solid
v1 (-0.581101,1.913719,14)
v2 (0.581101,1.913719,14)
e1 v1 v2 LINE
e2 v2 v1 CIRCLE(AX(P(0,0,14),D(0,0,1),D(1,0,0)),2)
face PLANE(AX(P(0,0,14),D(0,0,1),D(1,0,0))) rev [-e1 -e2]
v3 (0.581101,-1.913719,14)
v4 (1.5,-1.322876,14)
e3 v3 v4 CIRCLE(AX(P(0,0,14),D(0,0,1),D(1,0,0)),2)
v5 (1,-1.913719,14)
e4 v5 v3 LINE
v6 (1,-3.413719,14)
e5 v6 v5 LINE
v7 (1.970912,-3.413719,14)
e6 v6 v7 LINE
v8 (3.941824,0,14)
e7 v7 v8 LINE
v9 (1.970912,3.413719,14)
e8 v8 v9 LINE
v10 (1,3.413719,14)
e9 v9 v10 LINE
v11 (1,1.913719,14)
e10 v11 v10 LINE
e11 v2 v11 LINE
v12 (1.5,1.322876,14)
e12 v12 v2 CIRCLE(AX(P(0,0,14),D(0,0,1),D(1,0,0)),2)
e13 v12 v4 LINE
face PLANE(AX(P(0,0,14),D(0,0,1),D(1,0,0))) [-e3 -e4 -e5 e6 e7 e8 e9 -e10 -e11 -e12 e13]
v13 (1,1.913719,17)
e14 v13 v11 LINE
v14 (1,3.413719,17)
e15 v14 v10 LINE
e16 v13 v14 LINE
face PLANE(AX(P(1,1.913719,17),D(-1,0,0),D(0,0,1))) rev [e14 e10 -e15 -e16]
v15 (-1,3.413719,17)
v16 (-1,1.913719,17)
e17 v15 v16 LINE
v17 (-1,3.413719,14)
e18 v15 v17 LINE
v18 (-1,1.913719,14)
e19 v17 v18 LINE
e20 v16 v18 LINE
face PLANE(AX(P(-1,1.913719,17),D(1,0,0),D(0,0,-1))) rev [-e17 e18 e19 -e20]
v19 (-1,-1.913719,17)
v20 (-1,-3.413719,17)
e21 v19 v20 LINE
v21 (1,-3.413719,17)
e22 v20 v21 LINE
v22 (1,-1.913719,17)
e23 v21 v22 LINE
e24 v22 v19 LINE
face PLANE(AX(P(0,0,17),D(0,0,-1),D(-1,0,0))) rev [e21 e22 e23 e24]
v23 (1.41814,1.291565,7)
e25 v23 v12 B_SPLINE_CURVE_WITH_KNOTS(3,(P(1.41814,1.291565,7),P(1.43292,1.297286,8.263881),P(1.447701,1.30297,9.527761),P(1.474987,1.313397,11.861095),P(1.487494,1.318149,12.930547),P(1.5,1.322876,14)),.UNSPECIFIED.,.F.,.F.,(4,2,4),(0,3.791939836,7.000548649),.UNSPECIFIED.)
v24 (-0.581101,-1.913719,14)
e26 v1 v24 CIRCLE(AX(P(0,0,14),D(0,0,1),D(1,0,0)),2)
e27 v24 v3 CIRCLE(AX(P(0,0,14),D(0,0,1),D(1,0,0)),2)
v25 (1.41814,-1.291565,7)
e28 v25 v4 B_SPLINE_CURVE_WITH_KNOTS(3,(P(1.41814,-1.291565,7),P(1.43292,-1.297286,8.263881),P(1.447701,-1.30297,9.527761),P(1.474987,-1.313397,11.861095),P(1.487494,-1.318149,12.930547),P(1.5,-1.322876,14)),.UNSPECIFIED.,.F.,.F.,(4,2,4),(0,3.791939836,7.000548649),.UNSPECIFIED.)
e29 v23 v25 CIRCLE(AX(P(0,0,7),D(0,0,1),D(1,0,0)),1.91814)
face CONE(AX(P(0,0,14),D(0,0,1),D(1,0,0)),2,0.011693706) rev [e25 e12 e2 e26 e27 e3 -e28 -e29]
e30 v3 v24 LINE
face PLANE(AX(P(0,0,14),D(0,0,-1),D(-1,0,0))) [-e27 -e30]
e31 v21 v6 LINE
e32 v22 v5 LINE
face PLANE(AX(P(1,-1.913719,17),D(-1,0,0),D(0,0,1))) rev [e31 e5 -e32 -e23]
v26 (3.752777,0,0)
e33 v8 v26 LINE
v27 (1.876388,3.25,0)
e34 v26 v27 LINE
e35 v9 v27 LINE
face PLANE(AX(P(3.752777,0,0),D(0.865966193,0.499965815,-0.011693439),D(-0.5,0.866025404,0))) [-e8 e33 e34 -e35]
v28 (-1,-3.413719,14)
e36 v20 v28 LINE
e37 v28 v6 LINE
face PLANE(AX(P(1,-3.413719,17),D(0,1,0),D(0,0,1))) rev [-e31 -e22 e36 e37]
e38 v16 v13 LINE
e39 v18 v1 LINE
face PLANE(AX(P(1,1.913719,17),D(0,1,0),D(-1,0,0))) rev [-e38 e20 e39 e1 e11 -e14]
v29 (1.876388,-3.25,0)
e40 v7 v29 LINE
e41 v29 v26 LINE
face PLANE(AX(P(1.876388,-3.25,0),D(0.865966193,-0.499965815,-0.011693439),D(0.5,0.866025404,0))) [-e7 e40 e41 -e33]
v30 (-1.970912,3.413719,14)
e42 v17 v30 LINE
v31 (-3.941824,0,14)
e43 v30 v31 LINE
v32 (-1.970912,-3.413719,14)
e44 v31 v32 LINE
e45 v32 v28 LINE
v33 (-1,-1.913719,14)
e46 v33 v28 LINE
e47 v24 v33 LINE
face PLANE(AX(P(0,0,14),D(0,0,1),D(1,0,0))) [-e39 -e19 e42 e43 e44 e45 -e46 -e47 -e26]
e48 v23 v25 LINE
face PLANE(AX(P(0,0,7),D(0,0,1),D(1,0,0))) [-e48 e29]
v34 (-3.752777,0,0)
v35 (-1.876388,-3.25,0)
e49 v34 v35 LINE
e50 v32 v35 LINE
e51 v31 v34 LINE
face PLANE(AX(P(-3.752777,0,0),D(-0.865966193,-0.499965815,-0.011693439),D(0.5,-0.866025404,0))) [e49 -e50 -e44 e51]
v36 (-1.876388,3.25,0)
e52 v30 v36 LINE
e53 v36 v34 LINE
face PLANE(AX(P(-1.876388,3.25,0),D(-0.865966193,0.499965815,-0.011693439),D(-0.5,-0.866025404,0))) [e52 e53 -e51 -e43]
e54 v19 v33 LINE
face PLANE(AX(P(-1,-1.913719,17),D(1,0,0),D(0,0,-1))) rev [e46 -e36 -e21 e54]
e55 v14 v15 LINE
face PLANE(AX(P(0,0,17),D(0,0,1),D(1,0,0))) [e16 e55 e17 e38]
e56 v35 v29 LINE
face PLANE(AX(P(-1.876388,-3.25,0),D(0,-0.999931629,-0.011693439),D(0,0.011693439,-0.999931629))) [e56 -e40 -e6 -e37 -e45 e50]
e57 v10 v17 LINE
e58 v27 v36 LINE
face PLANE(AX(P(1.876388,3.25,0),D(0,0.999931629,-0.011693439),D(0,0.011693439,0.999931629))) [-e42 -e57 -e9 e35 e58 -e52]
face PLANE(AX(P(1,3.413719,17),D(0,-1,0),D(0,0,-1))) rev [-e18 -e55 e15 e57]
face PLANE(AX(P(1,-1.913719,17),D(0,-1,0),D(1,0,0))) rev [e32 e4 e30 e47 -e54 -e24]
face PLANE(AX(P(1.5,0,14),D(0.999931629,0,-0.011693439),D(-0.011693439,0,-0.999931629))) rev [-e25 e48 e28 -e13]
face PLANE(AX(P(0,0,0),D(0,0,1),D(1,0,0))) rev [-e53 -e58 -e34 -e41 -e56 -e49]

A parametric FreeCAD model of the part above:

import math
import FreeCAD as App
import Part
import Sketcher
from FreeCAD import Vector
Q = App.Units.Quantity


def faces_at(feature, points):
    """Names of the faces that lie closest to the given points."""
    faces = feature.Shape.Faces
    near = lambda p: min(range(len(faces)), key=lambda i: faces[i].distToShape(Part.Vertex(*p))[0])
    return sorted({f"Face{near(p) + 1}" for p in points})

doc = App.newDocument("Part")
params = doc.addObject("Spreadsheet::Sheet", "Params")
for row, (alias, value) in enumerate([
    ("pad1_length", "14 mm"),
    ("draft_angle", "0.67 deg"),
    ("sketch2_radius", "2 mm"),
    ("pocket1_length", "7 mm"),
    ("pocket1_taper", "-0.67 deg"),
    ("sketch3_width", "2 mm"),
    ("sketch3_height", "1.5 mm"),
    ("pad2_length", "3 mm"),
], start=1):
    params.set(f"A{row}", alias)
    params.set(f"B{row}", "=" + value)
    params.setAlias(f"B{row}", alias)

body = doc.addObject("PartDesign::Body", "Body")

# Sketch on XY plane
sketch1 = doc.addObject("Sketcher::SketchObject", "Sketch")
body.addObject(sketch1)
sketch1.AttachmentSupport = (doc.XY_Plane, [""])
sketch1.MapMode = "FlatFace"
sketch1.addGeometry(Part.LineSegment(Vector(1.9, 3.2, 0), Vector(-1.9, 3.2, 0)), False)
sketch1.addGeometry(Part.LineSegment(Vector(-1.9, 3.2, 0), Vector(-3.8, 0, 0)), False)
sketch1.addGeometry(Part.LineSegment(Vector(-3.8, 0, 0), Vector(-1.9, -3.2, 0)), False)
sketch1.addGeometry(Part.LineSegment(Vector(-1.9, -3.2, 0), Vector(1.9, -3.2, 0)), False)
sketch1.addGeometry(Part.LineSegment(Vector(1.9, -3.2, 0), Vector(3.8, 0, 0)), False)
sketch1.addGeometry(Part.LineSegment(Vector(3.8, 0, 0), Vector(1.9, 3.2, 0)), False)
sketch1.addConstraint(Sketcher.Constraint("Coincident", 0, 2, 1, 1))
sketch1.addConstraint(Sketcher.Constraint("Coincident", 1, 2, 2, 1))
sketch1.addConstraint(Sketcher.Constraint("Coincident", 2, 2, 3, 1))
sketch1.addConstraint(Sketcher.Constraint("Coincident", 3, 2, 4, 1))
sketch1.addConstraint(Sketcher.Constraint("Coincident", 4, 2, 5, 1))
sketch1.addConstraint(Sketcher.Constraint("Coincident", 5, 2, 0, 1))
sketch1.addConstraint(Sketcher.Constraint("Horizontal", 0))
sketch1.addConstraint(Sketcher.Constraint("Horizontal", 3))
sketch1.addConstraint(Sketcher.Constraint("Symmetric", 0, 2, 3, 2, -1, 1))
sketch1.addConstraint(Sketcher.Constraint("Symmetric", 1, 2, 4, 2, -1, 1))
sketch1.addConstraint(Sketcher.Constraint("PointOnObject", 1, 2, -1))
sketch1.addConstraint(Sketcher.Constraint("Parallel", 2, 5))
sketch1.addConstraint(Sketcher.Constraint("Vertical", 0, 2, 2, 2))
sketch1.addConstraint(Sketcher.Constraint("Angle", 1, Q("-120 deg")))
sketch1.addConstraint(Sketcher.Constraint("DistanceY", 2, 2, 0, 2, 6.5))
sketch1.addConstraint(Sketcher.Constraint("DistanceX", 0, 2, 0, 1, 3.752777))
pad1 = doc.addObject("PartDesign::Pad", "Pad")
body.addObject(pad1)
pad1.Profile = sketch1
pad1.setExpression("Length", "Params.pad1_length")
doc.recompute()

draft = doc.addObject("PartDesign::Draft", "Draft")
body.addObject(draft)
draft.Base = (pad1, faces_at(pad1, [
    (0, 3.25, 7),
    (-2.815, 1.625, 7),
    (-2.815, -1.625, 7),
    (0, -3.25, 7),
    (2.815, -1.625, 7),
    (2.815, 1.625, 7),
]))
draft.NeutralPlane = (doc.XY_Plane, [""])
draft.setExpression("Angle", "Params.draft_angle")
draft.Reversed = True

# Sketch on XY plane
sketch2 = doc.addObject("Sketcher::SketchObject", "Sketch001")
body.addObject(sketch2)
sketch2.AttachmentSupport = (doc.XY_Plane, [""])
sketch2.MapMode = "FlatFace"
sketch2.AttachmentOffset = App.Placement(Vector(0, 0, 14), App.Rotation())
sketch2.addGeometry(Part.LineSegment(Vector(1.5, -1.3, 0), Vector(1.5, 1.3, 0)), False)
sketch2.addGeometry(Part.ArcOfCircle(Part.Circle(Vector(0, 0, 0), Vector(0, 0, 1), 2), math.radians(41), math.radians(319)), False)
sketch2.addConstraint(Sketcher.Constraint("Coincident", 0, 1, 1, 2))
sketch2.addConstraint(Sketcher.Constraint("Coincident", 1, 1, 0, 2))
sketch2.addConstraint(Sketcher.Constraint("Vertical", 0))
sketch2.addConstraint(Sketcher.Constraint("Coincident", 1, 3, -1, 1))
sketch2.addConstraint(Sketcher.Constraint("Radius", 1, 2.0))
sketch2.addConstraint(Sketcher.Constraint("DistanceX", -1, 1, 0, 1, 1.5))
sketch2.setExpression("Constraints[4]", "Params.sketch2_radius")
pocket1 = doc.addObject("PartDesign::Pocket", "Pocket")
body.addObject(pocket1)
pocket1.Profile = sketch2
pocket1.setExpression("Length", "Params.pocket1_length")
pocket1.setExpression("TaperAngle", "Params.pocket1_taper")

# Sketch on XY plane
sketch3 = doc.addObject("Sketcher::SketchObject", "Sketch002")
body.addObject(sketch3)
sketch3.AttachmentSupport = (doc.XY_Plane, [""])
sketch3.MapMode = "FlatFace"
sketch3.AttachmentOffset = App.Placement(Vector(0, 0, 14), App.Rotation())
sketch3.addGeometry(Part.LineSegment(Vector(-1, 3.4, 0), Vector(-1, 1.9, 0)), False)
sketch3.addGeometry(Part.LineSegment(Vector(-1, 1.9, 0), Vector(1, 1.9, 0)), False)
sketch3.addGeometry(Part.LineSegment(Vector(1, 1.9, 0), Vector(1, 3.4, 0)), False)
sketch3.addGeometry(Part.LineSegment(Vector(1, 3.4, 0), Vector(-1, 3.4, 0)), False)
sketch3.addGeometry(Part.LineSegment(Vector(-1, -1.9, 0), Vector(-1, -3.4, 0)), False)
sketch3.addGeometry(Part.LineSegment(Vector(-1, -3.4, 0), Vector(1, -3.4, 0)), False)
sketch3.addGeometry(Part.LineSegment(Vector(1, -3.4, 0), Vector(1, -1.9, 0)), False)
sketch3.addGeometry(Part.LineSegment(Vector(1, -1.9, 0), Vector(-1, -1.9, 0)), False)
sketch3.addConstraint(Sketcher.Constraint("Coincident", 0, 2, 1, 1))
sketch3.addConstraint(Sketcher.Constraint("Coincident", 1, 2, 2, 1))
sketch3.addConstraint(Sketcher.Constraint("Coincident", 2, 2, 3, 1))
sketch3.addConstraint(Sketcher.Constraint("Coincident", 3, 2, 0, 1))
sketch3.addConstraint(Sketcher.Constraint("Coincident", 4, 2, 5, 1))
sketch3.addConstraint(Sketcher.Constraint("Coincident", 5, 2, 6, 1))
sketch3.addConstraint(Sketcher.Constraint("Coincident", 6, 2, 7, 1))
sketch3.addConstraint(Sketcher.Constraint("Coincident", 7, 2, 4, 1))
sketch3.addConstraint(Sketcher.Constraint("Vertical", 0))
sketch3.addConstraint(Sketcher.Constraint("Horizontal", 1))
sketch3.addConstraint(Sketcher.Constraint("Vertical", 2))
sketch3.addConstraint(Sketcher.Constraint("Horizontal", 3))
sketch3.addConstraint(Sketcher.Constraint("Vertical", 4))
sketch3.addConstraint(Sketcher.Constraint("Horizontal", 5))
sketch3.addConstraint(Sketcher.Constraint("Vertical", 6))
sketch3.addConstraint(Sketcher.Constraint("Horizontal", 7))
sketch3.addConstraint(Sketcher.Constraint("Symmetric", 2, 2, 4, 2, -1, 1))
sketch3.addConstraint(Sketcher.Constraint("Symmetric", 0, 2, 6, 2, -1, 1))
sketch3.addConstraint(Sketcher.Constraint("Vertical", 3, 2, 4, 2))
sketch3.addConstraint(Sketcher.Constraint("DistanceX", 1, 1, 1, 2, 2.0))
sketch3.addConstraint(Sketcher.Constraint("DistanceY", 0, 2, 0, 1, 1.5))
sketch3.addConstraint(Sketcher.Constraint("DistanceY", -1, 1, 0, 2, 1.913719))
sketch3.setExpression("Constraints[19]", "Params.sketch3_width")
sketch3.setExpression("Constraints[20]", "Params.sketch3_height")
pad2 = doc.addObject("PartDesign::Pad", "Pad001")
body.addObject(pad2)
pad2.Profile = sketch3
pad2.setExpression("Length", "Params.pad2_length")

doc.recompute()
